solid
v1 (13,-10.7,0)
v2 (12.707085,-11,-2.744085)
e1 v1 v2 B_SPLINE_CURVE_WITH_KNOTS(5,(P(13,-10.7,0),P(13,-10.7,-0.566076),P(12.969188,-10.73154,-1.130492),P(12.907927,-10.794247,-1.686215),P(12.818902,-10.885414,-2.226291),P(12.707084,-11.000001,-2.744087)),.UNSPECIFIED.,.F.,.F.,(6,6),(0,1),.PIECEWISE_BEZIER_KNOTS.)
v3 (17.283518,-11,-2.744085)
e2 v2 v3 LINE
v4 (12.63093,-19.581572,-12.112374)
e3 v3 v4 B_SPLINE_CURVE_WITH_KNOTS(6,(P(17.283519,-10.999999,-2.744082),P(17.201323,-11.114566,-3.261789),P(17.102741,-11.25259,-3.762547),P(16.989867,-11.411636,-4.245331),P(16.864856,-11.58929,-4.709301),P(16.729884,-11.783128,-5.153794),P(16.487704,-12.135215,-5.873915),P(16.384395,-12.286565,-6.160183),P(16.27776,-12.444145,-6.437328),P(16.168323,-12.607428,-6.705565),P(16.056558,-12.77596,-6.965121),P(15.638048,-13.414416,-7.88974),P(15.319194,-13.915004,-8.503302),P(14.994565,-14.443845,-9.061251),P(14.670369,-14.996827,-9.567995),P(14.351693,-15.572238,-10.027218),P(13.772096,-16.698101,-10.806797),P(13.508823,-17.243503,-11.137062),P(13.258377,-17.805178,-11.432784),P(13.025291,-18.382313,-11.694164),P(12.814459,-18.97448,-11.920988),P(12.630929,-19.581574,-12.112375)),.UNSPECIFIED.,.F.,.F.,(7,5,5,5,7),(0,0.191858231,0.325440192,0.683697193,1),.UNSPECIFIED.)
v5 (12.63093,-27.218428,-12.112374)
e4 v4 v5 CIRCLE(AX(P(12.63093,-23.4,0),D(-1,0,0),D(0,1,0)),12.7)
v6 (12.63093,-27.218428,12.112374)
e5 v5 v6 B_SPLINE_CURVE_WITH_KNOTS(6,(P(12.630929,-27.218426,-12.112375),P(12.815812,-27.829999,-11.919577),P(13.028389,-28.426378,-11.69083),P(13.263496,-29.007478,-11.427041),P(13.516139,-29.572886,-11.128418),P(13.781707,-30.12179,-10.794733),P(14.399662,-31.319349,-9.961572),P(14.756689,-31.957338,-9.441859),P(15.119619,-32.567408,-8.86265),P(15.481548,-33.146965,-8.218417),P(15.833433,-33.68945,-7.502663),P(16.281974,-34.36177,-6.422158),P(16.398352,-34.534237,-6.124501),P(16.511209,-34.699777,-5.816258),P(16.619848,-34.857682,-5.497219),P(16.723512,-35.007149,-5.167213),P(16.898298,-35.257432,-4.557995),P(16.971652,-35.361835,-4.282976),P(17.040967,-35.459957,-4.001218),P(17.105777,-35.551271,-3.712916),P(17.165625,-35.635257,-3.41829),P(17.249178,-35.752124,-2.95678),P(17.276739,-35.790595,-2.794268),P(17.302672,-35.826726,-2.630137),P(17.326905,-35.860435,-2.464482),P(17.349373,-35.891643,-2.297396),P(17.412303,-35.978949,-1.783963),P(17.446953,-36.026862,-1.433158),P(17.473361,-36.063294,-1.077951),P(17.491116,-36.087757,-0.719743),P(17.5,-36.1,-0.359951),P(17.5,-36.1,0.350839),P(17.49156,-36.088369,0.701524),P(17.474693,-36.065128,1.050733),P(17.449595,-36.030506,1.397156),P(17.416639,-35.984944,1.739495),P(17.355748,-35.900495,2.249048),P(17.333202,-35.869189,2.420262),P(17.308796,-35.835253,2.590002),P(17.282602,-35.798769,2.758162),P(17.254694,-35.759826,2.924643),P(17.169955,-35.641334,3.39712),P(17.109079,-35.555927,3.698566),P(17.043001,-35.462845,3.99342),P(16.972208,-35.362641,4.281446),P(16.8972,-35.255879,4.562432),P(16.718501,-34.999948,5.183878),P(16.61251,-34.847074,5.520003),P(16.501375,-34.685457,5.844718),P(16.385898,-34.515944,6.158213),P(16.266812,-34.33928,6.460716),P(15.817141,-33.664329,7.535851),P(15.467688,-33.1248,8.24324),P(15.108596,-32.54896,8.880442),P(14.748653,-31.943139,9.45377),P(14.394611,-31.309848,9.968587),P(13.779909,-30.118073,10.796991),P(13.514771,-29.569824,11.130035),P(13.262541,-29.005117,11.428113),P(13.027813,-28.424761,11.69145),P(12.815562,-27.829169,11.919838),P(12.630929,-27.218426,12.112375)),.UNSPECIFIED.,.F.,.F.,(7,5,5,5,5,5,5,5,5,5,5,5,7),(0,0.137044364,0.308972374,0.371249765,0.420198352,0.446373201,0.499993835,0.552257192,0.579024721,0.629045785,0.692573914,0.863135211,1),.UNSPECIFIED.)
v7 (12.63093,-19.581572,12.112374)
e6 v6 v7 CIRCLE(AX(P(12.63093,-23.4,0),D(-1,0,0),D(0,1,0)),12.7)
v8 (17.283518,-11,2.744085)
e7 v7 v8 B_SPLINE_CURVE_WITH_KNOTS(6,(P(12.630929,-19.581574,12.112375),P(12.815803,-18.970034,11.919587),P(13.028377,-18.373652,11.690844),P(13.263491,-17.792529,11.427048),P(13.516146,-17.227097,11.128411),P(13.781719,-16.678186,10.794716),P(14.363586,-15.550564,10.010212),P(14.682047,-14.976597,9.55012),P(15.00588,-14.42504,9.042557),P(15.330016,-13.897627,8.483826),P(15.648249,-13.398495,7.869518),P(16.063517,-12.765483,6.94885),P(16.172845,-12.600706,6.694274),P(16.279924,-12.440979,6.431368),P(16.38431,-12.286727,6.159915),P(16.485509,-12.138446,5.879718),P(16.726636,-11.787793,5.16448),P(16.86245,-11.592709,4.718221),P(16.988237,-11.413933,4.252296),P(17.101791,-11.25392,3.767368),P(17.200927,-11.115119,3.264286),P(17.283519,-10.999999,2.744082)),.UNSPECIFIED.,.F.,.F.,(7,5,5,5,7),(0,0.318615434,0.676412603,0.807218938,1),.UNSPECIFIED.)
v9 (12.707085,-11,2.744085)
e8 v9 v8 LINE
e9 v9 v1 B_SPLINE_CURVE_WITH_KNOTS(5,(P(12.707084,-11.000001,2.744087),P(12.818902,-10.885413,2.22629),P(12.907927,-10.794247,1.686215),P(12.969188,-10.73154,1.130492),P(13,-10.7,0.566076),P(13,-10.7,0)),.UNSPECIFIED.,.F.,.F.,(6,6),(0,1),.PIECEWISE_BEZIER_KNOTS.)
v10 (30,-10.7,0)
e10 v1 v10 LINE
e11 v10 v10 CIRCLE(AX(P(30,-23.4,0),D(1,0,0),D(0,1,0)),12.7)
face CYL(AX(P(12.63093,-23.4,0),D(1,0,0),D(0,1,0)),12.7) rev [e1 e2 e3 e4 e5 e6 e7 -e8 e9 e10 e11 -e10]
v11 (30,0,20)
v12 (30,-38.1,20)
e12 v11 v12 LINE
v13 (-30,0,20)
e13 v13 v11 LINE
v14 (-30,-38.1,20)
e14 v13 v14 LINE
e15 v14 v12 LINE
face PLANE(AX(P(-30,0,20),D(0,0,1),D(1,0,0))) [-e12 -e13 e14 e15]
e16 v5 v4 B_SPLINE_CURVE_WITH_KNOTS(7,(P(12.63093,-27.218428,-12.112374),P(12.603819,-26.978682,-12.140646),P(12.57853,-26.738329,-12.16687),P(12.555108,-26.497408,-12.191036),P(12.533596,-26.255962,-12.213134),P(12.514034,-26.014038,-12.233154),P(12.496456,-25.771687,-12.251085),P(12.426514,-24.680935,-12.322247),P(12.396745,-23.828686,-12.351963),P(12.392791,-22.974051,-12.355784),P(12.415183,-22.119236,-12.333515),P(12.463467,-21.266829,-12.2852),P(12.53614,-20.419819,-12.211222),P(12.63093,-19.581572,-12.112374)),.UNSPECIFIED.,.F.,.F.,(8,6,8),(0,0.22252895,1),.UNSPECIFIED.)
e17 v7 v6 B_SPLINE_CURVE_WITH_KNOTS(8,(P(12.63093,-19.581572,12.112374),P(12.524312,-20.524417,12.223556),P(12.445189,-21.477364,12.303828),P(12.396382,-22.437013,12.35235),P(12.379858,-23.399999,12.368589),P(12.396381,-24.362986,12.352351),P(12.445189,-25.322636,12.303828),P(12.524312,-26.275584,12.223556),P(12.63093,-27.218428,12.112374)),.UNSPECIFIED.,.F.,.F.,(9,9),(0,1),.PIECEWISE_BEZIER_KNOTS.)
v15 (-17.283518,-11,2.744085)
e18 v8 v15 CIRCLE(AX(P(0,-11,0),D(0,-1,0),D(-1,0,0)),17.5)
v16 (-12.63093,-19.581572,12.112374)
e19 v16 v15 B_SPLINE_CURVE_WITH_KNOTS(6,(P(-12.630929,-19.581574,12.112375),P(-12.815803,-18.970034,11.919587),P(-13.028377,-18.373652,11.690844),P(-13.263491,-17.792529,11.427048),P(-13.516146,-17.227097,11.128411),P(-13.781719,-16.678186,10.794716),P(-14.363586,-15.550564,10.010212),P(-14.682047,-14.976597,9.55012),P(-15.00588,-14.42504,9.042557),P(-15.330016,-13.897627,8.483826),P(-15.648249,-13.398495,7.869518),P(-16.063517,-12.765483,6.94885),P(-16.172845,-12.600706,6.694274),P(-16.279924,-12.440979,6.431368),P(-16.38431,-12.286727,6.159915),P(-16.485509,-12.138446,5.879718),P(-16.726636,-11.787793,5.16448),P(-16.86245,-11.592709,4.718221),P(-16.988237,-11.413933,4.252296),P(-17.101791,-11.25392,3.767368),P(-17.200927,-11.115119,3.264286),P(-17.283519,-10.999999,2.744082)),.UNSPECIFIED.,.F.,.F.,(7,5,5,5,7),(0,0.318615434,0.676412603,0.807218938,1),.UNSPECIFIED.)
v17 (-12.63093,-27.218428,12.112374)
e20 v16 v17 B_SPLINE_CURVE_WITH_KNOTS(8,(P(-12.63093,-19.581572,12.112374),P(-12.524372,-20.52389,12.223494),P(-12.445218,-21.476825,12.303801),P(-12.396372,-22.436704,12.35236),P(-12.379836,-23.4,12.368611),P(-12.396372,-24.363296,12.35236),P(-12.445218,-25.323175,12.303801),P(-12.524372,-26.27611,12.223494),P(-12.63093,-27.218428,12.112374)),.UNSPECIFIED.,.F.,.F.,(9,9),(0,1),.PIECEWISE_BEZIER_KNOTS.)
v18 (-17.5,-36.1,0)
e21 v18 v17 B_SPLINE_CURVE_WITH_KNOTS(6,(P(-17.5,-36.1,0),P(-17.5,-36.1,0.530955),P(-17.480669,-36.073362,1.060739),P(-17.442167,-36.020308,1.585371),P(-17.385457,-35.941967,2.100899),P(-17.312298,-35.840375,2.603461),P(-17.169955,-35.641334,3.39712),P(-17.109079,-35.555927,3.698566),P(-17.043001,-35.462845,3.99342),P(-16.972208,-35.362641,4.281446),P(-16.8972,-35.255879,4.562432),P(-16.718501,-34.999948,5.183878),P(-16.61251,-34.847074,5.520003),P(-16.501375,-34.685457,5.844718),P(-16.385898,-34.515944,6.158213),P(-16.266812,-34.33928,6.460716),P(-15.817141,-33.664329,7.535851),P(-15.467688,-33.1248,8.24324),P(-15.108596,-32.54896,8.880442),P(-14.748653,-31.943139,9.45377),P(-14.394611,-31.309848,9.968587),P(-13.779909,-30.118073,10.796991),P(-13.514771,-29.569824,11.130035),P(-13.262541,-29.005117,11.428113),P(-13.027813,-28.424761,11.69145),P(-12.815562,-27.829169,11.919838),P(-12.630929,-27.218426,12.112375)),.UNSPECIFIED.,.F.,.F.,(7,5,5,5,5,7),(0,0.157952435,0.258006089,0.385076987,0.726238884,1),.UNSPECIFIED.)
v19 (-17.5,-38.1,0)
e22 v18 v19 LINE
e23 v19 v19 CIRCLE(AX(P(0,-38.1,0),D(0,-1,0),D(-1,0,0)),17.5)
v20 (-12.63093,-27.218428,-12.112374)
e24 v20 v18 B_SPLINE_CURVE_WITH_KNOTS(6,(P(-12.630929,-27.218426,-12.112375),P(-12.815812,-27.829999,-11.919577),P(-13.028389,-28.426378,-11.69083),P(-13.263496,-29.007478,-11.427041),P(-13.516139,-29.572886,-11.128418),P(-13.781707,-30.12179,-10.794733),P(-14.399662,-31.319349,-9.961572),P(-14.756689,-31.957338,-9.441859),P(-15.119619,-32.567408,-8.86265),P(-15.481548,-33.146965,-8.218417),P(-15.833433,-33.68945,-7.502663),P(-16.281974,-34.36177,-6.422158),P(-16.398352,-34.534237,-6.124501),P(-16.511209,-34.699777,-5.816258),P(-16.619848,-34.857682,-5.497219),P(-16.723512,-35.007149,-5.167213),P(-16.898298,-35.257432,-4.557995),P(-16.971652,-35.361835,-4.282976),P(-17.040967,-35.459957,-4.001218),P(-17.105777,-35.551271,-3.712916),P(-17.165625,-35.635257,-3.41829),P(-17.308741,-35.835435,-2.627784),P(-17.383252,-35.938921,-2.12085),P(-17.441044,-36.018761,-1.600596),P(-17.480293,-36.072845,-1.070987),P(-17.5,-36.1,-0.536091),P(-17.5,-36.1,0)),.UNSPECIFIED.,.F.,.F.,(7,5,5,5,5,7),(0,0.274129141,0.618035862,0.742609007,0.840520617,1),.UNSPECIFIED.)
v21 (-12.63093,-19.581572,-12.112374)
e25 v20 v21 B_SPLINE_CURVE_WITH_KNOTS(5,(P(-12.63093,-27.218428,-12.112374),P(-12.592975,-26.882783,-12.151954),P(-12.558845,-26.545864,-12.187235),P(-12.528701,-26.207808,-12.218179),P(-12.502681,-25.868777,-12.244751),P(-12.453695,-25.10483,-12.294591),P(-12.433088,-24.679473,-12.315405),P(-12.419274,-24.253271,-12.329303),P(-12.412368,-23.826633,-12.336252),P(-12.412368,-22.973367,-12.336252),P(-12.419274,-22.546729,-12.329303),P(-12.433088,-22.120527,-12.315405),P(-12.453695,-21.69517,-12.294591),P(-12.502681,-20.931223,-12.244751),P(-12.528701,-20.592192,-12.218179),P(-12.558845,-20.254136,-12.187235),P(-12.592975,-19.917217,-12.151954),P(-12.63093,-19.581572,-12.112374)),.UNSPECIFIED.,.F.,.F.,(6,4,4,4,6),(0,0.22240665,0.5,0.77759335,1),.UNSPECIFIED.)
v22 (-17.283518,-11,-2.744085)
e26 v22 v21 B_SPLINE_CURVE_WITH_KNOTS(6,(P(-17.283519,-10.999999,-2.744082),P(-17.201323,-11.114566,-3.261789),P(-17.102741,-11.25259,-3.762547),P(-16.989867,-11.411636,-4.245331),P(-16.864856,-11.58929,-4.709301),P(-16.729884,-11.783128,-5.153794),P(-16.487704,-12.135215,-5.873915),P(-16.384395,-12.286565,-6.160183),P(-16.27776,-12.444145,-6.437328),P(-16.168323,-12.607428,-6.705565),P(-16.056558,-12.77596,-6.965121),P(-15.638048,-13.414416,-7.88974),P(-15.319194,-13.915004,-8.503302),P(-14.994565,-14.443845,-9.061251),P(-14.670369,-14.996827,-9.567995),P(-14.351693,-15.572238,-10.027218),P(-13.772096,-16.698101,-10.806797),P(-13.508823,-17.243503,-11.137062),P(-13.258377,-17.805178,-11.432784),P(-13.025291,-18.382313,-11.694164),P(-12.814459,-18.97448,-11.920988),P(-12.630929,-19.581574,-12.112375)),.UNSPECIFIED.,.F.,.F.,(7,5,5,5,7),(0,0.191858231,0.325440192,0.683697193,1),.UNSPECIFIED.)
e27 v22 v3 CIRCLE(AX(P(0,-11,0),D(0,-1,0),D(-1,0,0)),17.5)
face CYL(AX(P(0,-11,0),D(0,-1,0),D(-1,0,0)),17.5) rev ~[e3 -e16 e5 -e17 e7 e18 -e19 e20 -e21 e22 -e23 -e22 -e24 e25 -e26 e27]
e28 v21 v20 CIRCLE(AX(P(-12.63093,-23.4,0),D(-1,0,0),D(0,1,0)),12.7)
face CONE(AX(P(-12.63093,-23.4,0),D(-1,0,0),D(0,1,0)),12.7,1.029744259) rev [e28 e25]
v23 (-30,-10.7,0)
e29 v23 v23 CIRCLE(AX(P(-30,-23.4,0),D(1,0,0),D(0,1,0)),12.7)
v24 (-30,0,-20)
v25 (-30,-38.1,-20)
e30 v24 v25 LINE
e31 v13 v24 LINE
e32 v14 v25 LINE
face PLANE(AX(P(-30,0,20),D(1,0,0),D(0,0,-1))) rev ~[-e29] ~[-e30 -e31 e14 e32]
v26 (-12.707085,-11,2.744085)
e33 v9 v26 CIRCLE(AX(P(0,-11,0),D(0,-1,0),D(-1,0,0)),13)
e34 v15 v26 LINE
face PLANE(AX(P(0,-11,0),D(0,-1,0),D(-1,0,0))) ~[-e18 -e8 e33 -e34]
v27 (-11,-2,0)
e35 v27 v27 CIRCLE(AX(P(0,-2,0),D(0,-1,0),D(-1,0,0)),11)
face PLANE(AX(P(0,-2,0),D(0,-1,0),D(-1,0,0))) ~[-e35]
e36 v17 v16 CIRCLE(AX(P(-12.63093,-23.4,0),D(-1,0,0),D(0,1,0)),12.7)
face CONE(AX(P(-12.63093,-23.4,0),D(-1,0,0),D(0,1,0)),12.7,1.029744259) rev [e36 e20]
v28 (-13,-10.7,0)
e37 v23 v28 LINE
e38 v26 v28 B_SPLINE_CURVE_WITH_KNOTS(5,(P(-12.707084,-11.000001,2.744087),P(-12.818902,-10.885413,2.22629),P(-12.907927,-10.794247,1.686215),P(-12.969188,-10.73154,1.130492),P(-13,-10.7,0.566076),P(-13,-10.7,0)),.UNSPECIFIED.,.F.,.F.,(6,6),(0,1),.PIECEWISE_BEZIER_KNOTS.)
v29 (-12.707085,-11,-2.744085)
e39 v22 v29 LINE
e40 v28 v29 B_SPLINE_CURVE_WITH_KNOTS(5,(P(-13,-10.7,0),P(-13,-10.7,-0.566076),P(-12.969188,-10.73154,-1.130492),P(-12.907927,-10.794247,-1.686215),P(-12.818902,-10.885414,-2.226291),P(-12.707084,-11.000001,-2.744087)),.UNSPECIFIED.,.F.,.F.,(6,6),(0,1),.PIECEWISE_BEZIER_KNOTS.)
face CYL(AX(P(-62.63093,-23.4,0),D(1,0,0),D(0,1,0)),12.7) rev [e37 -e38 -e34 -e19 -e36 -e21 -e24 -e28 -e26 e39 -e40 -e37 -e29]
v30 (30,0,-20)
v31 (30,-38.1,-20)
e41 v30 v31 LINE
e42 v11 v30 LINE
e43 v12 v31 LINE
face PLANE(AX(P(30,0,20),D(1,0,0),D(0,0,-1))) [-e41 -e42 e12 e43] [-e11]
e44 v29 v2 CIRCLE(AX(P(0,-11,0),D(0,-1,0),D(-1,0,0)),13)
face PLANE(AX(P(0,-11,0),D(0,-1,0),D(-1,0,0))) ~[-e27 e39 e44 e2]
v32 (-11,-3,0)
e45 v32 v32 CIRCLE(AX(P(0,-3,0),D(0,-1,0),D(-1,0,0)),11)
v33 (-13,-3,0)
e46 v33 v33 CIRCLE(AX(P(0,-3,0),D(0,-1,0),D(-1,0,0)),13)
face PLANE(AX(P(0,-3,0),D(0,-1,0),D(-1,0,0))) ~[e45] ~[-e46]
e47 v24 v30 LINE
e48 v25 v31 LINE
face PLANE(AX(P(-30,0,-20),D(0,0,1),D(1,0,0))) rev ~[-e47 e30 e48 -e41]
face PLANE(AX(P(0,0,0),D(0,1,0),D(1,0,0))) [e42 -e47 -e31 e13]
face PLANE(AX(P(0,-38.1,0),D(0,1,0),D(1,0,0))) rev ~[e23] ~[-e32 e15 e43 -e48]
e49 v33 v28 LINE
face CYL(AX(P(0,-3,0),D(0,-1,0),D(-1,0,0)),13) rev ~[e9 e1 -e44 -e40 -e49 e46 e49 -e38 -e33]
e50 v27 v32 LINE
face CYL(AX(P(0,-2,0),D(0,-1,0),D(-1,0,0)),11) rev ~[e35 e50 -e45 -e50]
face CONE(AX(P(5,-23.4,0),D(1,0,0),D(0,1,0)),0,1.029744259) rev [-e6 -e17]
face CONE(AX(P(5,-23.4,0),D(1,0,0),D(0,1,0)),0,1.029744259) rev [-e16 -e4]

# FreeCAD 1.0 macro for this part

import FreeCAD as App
import Part
import Sketcher

V = App.Vector
Q = App.Units.Quantity


def add_polygon(sketch, points):
    """Adds a closed chain of lines whose ends are joined by coincident constraints."""
    first, n = sketch.GeometryCount, len(points)
    for a, b in zip(points, points[1:] + points[:1]):
        sketch.addGeometry(Part.LineSegment(App.Vector(*a, 0), App.Vector(*b, 0)), False)
    for i in range(n):
        sketch.addConstraint(Sketcher.Constraint("Coincident", first + i, 2, first + (i + 1) % n, 1))

doc = App.newDocument("Part")
body = doc.addObject("PartDesign::Body", "Body")

sketch1 = body.newObject("Sketcher::SketchObject", "Sketch")
sketch1.AttachmentSupport = (doc.getObject("XZ_Plane"), [""])
sketch1.MapMode = "FlatFace"
add_polygon(sketch1, [(-30, -20), (-30, 20), (30, 20), (30, -20)])
sketch1.addConstraint(Sketcher.Constraint("Vertical", 0))
sketch1.addConstraint(Sketcher.Constraint("Horizontal", 1))
sketch1.addConstraint(Sketcher.Constraint("Vertical", 2))
sketch1.addConstraint(Sketcher.Constraint("Horizontal", 3))
sketch1.addConstraint(Sketcher.Constraint("Symmetric", 0, 2, 2, 2, -1, 1))
sketch1.addConstraint(Sketcher.Constraint("DistanceX", 1, 1, 1, 2, Q("60 mm")))
sketch1.addConstraint(Sketcher.Constraint("DistanceY", 0, 1, 0, 2, Q("40 mm")))
pad1 = body.newObject("PartDesign::Pad", "Pad")
pad1.Profile = sketch1
pad1.Length = 38.1

sketch2 = body.newObject("Sketcher::SketchObject", "Sketch001")
sketch2.AttachmentSupport = (doc.getObject("XY_Plane"), [""])
sketch2.MapMode = "FlatFace"
add_polygon(sketch2, [(63, -36), (63, -23), (5, -23), (13, -36)])
add_polygon(sketch2, [(-13, -36), (-5, -23), (-63, -23), (-63, -36)])
sketch2.addGeometry(Part.LineSegment(V(63, -23, 0), V(-63, -23, 0)), True)
sketch2.addConstraint(Sketcher.Constraint("Vertical", 0))
sketch2.addConstraint(Sketcher.Constraint("Horizontal", 1))
sketch2.addConstraint(Sketcher.Constraint("Horizontal", 3))
sketch2.addConstraint(Sketcher.Constraint("Horizontal", 5))
sketch2.addConstraint(Sketcher.Constraint("Vertical", 6))
sketch2.addConstraint(Sketcher.Constraint("Horizontal", 7))
sketch2.addConstraint(Sketcher.Constraint("Horizontal", 8))
sketch2.addConstraint(Sketcher.Constraint("Coincident", 8, 1, 0, 2))
sketch2.addConstraint(Sketcher.Constraint("Coincident", 8, 2, 5, 2))
sketch2.addConstraint(Sketcher.Constraint("Symmetric", 3, 2, 6, 2, -2))
sketch2.addConstraint(Sketcher.Constraint("Equal", 1, 5))
sketch2.addConstraint(Sketcher.Constraint("Equal", 3, 7))
sketch2.addConstraint(Sketcher.Constraint("DistanceX", 3, 1, 3, 2, Q("50 mm")))
sketch2.addConstraint(Sketcher.Constraint("Angle", 2, Q("-59 deg")))
sketch2.addConstraint(Sketcher.Constraint("DistanceY", 0, 1, 0, 2, Q("12.7 mm")))
sketch2.addConstraint(Sketcher.Constraint("DistanceX", -1, 1, 1, 2, Q("5 mm")))
sketch2.addConstraint(Sketcher.Constraint("DistanceY", 0, 2, -1, 1, Q("23.4 mm")))
groove = body.newObject("PartDesign::Groove", "Groove")
groove.Profile = sketch2
groove.ReferenceAxis = (sketch2, ["Axis0"])
groove.Angle = 360

sketch3 = body.newObject("Sketcher::SketchObject", "Sketch002")
sketch3.AttachmentSupport = (doc.getObject("XY_Plane"), [""])
sketch3.MapMode = "FlatFace"
add_polygon(sketch3, [(-17.5, -11), (-17.5, -38.1), (0, -38.1), (0, -2), (-11, -2), (-11, -3), (-13, -3), (-13, -11)])
sketch3.addConstraint(Sketcher.Constraint("Vertical", 0))
sketch3.addConstraint(Sketcher.Constraint("Horizontal", 1))
sketch3.addConstraint(Sketcher.Constraint("Vertical", 2))
sketch3.addConstraint(Sketcher.Constraint("Horizontal", 3))
sketch3.addConstraint(Sketcher.Constraint("Vertical", 4))
sketch3.addConstraint(Sketcher.Constraint("Horizontal", 5))
sketch3.addConstraint(Sketcher.Constraint("Vertical", 6))
sketch3.addConstraint(Sketcher.Constraint("Horizontal", 7))
sketch3.addConstraint(Sketcher.Constraint("PointOnObject", 1, 2, -2))
sketch3.addConstraint(Sketcher.Constraint("DistanceX", 3, 2, 3, 1, Q("11 mm")))
sketch3.addConstraint(Sketcher.Constraint("DistanceX", 5, 2, 5, 1, Q("2 mm")))
sketch3.addConstraint(Sketcher.Constraint("DistanceY", 4, 2, 4, 1, Q("1 mm")))
sketch3.addConstraint(Sketcher.Constraint("DistanceY", 6, 2, 6, 1, Q("8 mm")))
sketch3.addConstraint(Sketcher.Constraint("DistanceX", 1, 1, 1, 2, Q("17.5 mm")))
sketch3.addConstraint(Sketcher.Constraint("DistanceY", 0, 2, 0, 1, Q("27.1 mm")))
sketch3.addConstraint(Sketcher.Constraint("DistanceY", 2, 2, -1, 1, Q("2 mm")))
groove2 = body.newObject("PartDesign::Groove", "Groove001")
groove2.Profile = sketch3
groove2.ReferenceAxis = (sketch3, ["V_Axis"])
groove2.Angle = 360

doc.recompute()
